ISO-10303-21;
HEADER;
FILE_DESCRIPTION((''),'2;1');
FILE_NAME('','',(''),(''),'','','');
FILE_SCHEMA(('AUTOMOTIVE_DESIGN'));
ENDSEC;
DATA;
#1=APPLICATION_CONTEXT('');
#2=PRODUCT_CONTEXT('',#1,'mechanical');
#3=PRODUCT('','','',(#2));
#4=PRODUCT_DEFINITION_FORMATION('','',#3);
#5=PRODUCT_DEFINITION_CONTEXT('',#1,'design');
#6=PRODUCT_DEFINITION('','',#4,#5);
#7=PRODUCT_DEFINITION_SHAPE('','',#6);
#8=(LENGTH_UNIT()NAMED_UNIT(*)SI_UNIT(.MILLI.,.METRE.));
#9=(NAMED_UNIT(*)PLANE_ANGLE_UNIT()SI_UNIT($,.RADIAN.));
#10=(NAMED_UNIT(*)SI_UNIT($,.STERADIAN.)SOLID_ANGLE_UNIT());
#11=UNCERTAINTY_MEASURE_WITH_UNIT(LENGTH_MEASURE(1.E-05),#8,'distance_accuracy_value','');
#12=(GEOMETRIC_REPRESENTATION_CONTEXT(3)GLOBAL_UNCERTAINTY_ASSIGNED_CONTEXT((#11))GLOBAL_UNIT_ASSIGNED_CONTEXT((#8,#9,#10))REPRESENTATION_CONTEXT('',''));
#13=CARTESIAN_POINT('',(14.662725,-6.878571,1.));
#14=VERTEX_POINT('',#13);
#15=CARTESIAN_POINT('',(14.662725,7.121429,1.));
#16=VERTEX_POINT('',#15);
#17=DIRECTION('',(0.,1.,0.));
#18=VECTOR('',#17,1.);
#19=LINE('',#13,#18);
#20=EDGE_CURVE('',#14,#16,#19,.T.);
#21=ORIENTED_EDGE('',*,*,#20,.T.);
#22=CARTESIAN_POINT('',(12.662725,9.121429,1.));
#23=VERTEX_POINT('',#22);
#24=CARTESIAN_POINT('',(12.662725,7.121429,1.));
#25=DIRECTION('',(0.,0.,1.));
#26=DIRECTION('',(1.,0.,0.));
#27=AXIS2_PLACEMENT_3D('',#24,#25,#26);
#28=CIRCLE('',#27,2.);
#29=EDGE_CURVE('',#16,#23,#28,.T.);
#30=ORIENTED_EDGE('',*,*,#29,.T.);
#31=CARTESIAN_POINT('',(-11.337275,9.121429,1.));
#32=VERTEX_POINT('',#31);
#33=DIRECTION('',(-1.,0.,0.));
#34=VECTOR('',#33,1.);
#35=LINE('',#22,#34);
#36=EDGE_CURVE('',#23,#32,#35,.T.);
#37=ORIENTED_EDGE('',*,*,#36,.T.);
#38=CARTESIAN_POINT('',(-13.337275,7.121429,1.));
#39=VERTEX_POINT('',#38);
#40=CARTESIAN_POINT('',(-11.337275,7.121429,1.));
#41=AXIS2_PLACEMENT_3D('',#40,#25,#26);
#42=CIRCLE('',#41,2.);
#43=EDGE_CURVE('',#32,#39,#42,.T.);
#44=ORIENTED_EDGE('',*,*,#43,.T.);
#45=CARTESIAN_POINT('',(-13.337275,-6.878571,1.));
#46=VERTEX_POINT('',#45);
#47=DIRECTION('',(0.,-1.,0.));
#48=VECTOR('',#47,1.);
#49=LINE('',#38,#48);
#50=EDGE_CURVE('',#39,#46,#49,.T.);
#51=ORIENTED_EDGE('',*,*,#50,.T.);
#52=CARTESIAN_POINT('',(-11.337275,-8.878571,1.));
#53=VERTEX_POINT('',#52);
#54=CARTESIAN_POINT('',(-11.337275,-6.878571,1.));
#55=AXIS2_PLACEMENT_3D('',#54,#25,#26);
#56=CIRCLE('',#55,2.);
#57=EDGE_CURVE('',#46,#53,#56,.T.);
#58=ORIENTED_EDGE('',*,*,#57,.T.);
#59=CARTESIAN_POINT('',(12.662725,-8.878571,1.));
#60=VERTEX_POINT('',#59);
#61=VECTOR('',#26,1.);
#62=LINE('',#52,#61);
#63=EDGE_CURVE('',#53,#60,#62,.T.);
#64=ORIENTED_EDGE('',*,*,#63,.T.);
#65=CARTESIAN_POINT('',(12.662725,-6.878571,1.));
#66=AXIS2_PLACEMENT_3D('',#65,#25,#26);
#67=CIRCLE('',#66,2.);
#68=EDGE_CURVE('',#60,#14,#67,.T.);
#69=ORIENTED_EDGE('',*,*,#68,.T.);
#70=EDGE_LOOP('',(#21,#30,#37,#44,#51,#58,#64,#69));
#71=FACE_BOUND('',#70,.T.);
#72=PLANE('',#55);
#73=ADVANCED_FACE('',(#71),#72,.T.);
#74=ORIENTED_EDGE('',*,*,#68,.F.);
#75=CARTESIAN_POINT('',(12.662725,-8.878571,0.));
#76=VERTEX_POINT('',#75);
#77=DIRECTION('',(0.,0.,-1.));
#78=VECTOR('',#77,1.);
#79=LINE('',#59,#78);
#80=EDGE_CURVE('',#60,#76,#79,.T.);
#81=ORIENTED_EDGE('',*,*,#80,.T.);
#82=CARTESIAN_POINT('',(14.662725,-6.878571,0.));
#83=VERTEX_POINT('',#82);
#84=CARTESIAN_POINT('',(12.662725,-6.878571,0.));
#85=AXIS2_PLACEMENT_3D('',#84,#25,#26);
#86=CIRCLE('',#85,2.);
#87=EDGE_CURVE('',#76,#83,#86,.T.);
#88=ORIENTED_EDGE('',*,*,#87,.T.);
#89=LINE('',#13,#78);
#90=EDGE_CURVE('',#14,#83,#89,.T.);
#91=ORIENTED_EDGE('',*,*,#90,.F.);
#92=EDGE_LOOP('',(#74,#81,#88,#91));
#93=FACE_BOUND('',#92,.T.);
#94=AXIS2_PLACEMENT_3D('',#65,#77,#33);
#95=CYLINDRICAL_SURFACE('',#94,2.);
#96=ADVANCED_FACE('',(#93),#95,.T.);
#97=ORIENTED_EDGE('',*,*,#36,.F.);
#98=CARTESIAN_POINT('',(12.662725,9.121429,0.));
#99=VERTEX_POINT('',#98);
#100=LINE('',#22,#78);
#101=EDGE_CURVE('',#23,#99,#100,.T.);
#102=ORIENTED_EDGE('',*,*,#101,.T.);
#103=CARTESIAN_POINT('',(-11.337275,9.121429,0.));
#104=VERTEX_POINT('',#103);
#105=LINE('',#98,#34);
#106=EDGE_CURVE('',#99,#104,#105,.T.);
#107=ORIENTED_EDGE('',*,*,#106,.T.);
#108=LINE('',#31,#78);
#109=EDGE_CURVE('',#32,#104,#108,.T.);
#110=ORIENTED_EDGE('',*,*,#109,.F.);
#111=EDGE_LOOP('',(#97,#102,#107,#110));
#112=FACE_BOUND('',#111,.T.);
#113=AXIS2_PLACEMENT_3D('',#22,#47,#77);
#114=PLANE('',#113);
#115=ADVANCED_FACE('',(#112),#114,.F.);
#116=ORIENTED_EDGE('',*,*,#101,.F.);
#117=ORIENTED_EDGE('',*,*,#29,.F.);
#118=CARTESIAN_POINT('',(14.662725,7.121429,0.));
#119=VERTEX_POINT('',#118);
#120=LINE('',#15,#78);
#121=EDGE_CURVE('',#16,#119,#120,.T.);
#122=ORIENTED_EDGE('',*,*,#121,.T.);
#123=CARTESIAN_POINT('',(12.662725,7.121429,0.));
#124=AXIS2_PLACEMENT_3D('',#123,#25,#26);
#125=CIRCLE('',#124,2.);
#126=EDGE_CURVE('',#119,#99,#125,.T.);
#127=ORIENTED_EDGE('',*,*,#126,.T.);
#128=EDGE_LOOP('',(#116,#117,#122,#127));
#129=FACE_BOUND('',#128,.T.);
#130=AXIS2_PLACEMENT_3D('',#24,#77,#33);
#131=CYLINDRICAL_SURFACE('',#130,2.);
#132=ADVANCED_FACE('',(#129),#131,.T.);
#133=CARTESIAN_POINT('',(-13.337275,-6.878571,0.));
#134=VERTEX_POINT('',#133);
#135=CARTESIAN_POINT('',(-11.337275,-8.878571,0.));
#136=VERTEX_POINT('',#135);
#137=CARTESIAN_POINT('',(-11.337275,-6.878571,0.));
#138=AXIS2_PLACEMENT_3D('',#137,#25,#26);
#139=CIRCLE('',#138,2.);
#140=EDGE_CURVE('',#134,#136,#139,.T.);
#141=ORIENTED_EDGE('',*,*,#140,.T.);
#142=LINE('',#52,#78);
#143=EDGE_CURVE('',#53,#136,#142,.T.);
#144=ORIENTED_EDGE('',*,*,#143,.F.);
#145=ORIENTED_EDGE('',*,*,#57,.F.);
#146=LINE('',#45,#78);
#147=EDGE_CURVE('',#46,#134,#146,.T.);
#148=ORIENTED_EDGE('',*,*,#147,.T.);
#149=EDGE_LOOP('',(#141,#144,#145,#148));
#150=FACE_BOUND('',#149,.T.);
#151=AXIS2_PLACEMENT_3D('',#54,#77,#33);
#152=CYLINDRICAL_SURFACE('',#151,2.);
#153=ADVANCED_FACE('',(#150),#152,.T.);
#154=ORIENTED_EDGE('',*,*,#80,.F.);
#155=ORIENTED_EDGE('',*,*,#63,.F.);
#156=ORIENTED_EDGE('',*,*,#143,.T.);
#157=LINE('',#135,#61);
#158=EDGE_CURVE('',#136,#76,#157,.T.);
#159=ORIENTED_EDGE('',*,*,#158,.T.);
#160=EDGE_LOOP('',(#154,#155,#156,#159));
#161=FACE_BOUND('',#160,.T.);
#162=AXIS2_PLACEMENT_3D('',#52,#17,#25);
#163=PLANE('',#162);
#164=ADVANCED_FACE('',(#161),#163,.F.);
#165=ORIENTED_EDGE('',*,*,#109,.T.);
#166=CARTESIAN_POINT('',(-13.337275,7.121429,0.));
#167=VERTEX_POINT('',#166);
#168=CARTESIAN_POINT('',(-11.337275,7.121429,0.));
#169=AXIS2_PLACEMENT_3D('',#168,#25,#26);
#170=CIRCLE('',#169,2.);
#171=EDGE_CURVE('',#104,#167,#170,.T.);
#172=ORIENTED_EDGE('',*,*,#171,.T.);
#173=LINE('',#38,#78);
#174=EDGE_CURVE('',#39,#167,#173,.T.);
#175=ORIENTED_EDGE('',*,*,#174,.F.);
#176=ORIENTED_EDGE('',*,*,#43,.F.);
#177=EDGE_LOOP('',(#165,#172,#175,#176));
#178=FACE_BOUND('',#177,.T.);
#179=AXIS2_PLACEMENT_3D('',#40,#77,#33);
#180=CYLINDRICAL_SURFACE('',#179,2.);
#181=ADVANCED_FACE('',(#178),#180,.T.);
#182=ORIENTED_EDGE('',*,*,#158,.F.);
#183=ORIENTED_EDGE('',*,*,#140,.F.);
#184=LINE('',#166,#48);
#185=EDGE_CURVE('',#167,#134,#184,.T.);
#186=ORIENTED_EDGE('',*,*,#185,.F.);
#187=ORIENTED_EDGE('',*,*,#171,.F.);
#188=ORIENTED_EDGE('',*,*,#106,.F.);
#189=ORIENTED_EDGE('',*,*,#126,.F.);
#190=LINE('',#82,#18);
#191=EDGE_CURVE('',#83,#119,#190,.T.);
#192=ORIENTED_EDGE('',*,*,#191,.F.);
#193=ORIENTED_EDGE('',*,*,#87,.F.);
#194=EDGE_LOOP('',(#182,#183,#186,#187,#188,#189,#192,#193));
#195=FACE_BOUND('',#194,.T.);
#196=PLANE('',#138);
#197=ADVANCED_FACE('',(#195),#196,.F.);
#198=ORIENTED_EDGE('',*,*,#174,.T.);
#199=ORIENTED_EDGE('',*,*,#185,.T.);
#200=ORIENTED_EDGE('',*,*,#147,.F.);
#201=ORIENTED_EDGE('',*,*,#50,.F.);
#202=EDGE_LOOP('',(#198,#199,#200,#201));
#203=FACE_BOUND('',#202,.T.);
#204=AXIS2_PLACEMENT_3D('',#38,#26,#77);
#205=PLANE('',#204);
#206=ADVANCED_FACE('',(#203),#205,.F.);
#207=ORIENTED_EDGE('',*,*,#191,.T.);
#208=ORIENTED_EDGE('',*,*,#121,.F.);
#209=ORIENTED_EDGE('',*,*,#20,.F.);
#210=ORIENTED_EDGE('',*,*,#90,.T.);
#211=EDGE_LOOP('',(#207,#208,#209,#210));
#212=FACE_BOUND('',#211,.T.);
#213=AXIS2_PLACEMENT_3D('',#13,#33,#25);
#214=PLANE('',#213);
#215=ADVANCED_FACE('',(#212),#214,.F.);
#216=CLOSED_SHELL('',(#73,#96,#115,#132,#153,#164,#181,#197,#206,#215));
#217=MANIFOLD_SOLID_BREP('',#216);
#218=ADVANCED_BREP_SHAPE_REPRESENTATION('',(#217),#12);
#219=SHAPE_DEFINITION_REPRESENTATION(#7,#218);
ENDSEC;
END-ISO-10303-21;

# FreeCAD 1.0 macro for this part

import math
import FreeCAD as App
import Part
import Sketcher

V = App.Vector

doc = App.newDocument("Part")
body = doc.addObject("PartDesign::Body", "Body")

# Sketch on XY plane
sketch1 = body.newObject("Sketcher::SketchObject", "Sketch")
sketch1.AttachmentSupport = (doc.getObject("XY_Plane"), [""])
sketch1.MapMode = "FlatFace"
sketch1.addGeometry(Part.LineSegment(V(-11.337275, -8.878571, 0), V(12.662725, -8.878571, 0)), False)
sketch1.addGeometry(Part.ArcOfCircle(Part.Circle(V(12.662725, -6.878571, 0), V(0, 0, 1), 2), math.radians(-90), math.radians(0)), False)
sketch1.addGeometry(Part.LineSegment(V(14.662725, -6.878571, 0), V(14.662725, 7.121429, 0)), False)
sketch1.addGeometry(Part.ArcOfCircle(Part.Circle(V(12.662725, 7.121429, 0), V(0, 0, 1), 2), math.radians(0), math.radians(90)), False)
sketch1.addGeometry(Part.LineSegment(V(12.662725, 9.121429, 0), V(-11.337275, 9.121429, 0)), False)
sketch1.addGeometry(Part.ArcOfCircle(Part.Circle(V(-11.337275, 7.121429, 0), V(0, 0, 1), 2), math.radians(90), math.radians(180)), False)
sketch1.addGeometry(Part.LineSegment(V(-13.337275, 7.121429, 0), V(-13.337275, -6.878571, 0)), False)
sketch1.addGeometry(Part.ArcOfCircle(Part.Circle(V(-11.337275, -6.878571, 0), V(0, 0, 1), 2), math.radians(-180), math.radians(-90)), False)
sketch1.addConstraint(Sketcher.Constraint("Tangent", 0, 2, 1, 1))
sketch1.addConstraint(Sketcher.Constraint("Tangent", 1, 2, 2, 1))
sketch1.addConstraint(Sketcher.Constraint("Tangent", 2, 2, 3, 1))
sketch1.addConstraint(Sketcher.Constraint("Tangent", 3, 2, 4, 1))
sketch1.addConstraint(Sketcher.Constraint("Tangent", 4, 2, 5, 1))
sketch1.addConstraint(Sketcher.Constraint("Tangent", 5, 2, 6, 1))
sketch1.addConstraint(Sketcher.Constraint("Tangent", 6, 2, 7, 1))
sketch1.addConstraint(Sketcher.Constraint("Tangent", 7, 2, 0, 1))
sketch1.addConstraint(Sketcher.Constraint("Horizontal", 0))
sketch1.addConstraint(Sketcher.Constraint("Vertical", 2))
sketch1.addConstraint(Sketcher.Constraint("Horizontal", 4))
sketch1.addConstraint(Sketcher.Constraint("Vertical", 6))
sketch1.addConstraint(Sketcher.Constraint("Equal", 1, 3))
sketch1.addConstraint(Sketcher.Constraint("Equal", 3, 5))
sketch1.addConstraint(Sketcher.Constraint("Equal", 5, 7))
sketch1.addConstraint(Sketcher.Constraint("Radius", 1, 2.0))
sketch1.addConstraint(Sketcher.Constraint("DistanceX", 0, 1, 0, 2, 24.0))
sketch1.addConstraint(Sketcher.Constraint("DistanceY", 2, 1, 2, 2, 14.0))
sketch1.addConstraint(Sketcher.Constraint("DistanceY", 1, 3, -1, 1, 6.878571))
sketch1.addConstraint(Sketcher.Constraint("DistanceX", -1, 1, 1, 3, 12.662725))
pad1 = body.newObject("PartDesign::Pad", "Pad")
pad1.Profile = sketch1
pad1.Length = 1

doc.recompute()
